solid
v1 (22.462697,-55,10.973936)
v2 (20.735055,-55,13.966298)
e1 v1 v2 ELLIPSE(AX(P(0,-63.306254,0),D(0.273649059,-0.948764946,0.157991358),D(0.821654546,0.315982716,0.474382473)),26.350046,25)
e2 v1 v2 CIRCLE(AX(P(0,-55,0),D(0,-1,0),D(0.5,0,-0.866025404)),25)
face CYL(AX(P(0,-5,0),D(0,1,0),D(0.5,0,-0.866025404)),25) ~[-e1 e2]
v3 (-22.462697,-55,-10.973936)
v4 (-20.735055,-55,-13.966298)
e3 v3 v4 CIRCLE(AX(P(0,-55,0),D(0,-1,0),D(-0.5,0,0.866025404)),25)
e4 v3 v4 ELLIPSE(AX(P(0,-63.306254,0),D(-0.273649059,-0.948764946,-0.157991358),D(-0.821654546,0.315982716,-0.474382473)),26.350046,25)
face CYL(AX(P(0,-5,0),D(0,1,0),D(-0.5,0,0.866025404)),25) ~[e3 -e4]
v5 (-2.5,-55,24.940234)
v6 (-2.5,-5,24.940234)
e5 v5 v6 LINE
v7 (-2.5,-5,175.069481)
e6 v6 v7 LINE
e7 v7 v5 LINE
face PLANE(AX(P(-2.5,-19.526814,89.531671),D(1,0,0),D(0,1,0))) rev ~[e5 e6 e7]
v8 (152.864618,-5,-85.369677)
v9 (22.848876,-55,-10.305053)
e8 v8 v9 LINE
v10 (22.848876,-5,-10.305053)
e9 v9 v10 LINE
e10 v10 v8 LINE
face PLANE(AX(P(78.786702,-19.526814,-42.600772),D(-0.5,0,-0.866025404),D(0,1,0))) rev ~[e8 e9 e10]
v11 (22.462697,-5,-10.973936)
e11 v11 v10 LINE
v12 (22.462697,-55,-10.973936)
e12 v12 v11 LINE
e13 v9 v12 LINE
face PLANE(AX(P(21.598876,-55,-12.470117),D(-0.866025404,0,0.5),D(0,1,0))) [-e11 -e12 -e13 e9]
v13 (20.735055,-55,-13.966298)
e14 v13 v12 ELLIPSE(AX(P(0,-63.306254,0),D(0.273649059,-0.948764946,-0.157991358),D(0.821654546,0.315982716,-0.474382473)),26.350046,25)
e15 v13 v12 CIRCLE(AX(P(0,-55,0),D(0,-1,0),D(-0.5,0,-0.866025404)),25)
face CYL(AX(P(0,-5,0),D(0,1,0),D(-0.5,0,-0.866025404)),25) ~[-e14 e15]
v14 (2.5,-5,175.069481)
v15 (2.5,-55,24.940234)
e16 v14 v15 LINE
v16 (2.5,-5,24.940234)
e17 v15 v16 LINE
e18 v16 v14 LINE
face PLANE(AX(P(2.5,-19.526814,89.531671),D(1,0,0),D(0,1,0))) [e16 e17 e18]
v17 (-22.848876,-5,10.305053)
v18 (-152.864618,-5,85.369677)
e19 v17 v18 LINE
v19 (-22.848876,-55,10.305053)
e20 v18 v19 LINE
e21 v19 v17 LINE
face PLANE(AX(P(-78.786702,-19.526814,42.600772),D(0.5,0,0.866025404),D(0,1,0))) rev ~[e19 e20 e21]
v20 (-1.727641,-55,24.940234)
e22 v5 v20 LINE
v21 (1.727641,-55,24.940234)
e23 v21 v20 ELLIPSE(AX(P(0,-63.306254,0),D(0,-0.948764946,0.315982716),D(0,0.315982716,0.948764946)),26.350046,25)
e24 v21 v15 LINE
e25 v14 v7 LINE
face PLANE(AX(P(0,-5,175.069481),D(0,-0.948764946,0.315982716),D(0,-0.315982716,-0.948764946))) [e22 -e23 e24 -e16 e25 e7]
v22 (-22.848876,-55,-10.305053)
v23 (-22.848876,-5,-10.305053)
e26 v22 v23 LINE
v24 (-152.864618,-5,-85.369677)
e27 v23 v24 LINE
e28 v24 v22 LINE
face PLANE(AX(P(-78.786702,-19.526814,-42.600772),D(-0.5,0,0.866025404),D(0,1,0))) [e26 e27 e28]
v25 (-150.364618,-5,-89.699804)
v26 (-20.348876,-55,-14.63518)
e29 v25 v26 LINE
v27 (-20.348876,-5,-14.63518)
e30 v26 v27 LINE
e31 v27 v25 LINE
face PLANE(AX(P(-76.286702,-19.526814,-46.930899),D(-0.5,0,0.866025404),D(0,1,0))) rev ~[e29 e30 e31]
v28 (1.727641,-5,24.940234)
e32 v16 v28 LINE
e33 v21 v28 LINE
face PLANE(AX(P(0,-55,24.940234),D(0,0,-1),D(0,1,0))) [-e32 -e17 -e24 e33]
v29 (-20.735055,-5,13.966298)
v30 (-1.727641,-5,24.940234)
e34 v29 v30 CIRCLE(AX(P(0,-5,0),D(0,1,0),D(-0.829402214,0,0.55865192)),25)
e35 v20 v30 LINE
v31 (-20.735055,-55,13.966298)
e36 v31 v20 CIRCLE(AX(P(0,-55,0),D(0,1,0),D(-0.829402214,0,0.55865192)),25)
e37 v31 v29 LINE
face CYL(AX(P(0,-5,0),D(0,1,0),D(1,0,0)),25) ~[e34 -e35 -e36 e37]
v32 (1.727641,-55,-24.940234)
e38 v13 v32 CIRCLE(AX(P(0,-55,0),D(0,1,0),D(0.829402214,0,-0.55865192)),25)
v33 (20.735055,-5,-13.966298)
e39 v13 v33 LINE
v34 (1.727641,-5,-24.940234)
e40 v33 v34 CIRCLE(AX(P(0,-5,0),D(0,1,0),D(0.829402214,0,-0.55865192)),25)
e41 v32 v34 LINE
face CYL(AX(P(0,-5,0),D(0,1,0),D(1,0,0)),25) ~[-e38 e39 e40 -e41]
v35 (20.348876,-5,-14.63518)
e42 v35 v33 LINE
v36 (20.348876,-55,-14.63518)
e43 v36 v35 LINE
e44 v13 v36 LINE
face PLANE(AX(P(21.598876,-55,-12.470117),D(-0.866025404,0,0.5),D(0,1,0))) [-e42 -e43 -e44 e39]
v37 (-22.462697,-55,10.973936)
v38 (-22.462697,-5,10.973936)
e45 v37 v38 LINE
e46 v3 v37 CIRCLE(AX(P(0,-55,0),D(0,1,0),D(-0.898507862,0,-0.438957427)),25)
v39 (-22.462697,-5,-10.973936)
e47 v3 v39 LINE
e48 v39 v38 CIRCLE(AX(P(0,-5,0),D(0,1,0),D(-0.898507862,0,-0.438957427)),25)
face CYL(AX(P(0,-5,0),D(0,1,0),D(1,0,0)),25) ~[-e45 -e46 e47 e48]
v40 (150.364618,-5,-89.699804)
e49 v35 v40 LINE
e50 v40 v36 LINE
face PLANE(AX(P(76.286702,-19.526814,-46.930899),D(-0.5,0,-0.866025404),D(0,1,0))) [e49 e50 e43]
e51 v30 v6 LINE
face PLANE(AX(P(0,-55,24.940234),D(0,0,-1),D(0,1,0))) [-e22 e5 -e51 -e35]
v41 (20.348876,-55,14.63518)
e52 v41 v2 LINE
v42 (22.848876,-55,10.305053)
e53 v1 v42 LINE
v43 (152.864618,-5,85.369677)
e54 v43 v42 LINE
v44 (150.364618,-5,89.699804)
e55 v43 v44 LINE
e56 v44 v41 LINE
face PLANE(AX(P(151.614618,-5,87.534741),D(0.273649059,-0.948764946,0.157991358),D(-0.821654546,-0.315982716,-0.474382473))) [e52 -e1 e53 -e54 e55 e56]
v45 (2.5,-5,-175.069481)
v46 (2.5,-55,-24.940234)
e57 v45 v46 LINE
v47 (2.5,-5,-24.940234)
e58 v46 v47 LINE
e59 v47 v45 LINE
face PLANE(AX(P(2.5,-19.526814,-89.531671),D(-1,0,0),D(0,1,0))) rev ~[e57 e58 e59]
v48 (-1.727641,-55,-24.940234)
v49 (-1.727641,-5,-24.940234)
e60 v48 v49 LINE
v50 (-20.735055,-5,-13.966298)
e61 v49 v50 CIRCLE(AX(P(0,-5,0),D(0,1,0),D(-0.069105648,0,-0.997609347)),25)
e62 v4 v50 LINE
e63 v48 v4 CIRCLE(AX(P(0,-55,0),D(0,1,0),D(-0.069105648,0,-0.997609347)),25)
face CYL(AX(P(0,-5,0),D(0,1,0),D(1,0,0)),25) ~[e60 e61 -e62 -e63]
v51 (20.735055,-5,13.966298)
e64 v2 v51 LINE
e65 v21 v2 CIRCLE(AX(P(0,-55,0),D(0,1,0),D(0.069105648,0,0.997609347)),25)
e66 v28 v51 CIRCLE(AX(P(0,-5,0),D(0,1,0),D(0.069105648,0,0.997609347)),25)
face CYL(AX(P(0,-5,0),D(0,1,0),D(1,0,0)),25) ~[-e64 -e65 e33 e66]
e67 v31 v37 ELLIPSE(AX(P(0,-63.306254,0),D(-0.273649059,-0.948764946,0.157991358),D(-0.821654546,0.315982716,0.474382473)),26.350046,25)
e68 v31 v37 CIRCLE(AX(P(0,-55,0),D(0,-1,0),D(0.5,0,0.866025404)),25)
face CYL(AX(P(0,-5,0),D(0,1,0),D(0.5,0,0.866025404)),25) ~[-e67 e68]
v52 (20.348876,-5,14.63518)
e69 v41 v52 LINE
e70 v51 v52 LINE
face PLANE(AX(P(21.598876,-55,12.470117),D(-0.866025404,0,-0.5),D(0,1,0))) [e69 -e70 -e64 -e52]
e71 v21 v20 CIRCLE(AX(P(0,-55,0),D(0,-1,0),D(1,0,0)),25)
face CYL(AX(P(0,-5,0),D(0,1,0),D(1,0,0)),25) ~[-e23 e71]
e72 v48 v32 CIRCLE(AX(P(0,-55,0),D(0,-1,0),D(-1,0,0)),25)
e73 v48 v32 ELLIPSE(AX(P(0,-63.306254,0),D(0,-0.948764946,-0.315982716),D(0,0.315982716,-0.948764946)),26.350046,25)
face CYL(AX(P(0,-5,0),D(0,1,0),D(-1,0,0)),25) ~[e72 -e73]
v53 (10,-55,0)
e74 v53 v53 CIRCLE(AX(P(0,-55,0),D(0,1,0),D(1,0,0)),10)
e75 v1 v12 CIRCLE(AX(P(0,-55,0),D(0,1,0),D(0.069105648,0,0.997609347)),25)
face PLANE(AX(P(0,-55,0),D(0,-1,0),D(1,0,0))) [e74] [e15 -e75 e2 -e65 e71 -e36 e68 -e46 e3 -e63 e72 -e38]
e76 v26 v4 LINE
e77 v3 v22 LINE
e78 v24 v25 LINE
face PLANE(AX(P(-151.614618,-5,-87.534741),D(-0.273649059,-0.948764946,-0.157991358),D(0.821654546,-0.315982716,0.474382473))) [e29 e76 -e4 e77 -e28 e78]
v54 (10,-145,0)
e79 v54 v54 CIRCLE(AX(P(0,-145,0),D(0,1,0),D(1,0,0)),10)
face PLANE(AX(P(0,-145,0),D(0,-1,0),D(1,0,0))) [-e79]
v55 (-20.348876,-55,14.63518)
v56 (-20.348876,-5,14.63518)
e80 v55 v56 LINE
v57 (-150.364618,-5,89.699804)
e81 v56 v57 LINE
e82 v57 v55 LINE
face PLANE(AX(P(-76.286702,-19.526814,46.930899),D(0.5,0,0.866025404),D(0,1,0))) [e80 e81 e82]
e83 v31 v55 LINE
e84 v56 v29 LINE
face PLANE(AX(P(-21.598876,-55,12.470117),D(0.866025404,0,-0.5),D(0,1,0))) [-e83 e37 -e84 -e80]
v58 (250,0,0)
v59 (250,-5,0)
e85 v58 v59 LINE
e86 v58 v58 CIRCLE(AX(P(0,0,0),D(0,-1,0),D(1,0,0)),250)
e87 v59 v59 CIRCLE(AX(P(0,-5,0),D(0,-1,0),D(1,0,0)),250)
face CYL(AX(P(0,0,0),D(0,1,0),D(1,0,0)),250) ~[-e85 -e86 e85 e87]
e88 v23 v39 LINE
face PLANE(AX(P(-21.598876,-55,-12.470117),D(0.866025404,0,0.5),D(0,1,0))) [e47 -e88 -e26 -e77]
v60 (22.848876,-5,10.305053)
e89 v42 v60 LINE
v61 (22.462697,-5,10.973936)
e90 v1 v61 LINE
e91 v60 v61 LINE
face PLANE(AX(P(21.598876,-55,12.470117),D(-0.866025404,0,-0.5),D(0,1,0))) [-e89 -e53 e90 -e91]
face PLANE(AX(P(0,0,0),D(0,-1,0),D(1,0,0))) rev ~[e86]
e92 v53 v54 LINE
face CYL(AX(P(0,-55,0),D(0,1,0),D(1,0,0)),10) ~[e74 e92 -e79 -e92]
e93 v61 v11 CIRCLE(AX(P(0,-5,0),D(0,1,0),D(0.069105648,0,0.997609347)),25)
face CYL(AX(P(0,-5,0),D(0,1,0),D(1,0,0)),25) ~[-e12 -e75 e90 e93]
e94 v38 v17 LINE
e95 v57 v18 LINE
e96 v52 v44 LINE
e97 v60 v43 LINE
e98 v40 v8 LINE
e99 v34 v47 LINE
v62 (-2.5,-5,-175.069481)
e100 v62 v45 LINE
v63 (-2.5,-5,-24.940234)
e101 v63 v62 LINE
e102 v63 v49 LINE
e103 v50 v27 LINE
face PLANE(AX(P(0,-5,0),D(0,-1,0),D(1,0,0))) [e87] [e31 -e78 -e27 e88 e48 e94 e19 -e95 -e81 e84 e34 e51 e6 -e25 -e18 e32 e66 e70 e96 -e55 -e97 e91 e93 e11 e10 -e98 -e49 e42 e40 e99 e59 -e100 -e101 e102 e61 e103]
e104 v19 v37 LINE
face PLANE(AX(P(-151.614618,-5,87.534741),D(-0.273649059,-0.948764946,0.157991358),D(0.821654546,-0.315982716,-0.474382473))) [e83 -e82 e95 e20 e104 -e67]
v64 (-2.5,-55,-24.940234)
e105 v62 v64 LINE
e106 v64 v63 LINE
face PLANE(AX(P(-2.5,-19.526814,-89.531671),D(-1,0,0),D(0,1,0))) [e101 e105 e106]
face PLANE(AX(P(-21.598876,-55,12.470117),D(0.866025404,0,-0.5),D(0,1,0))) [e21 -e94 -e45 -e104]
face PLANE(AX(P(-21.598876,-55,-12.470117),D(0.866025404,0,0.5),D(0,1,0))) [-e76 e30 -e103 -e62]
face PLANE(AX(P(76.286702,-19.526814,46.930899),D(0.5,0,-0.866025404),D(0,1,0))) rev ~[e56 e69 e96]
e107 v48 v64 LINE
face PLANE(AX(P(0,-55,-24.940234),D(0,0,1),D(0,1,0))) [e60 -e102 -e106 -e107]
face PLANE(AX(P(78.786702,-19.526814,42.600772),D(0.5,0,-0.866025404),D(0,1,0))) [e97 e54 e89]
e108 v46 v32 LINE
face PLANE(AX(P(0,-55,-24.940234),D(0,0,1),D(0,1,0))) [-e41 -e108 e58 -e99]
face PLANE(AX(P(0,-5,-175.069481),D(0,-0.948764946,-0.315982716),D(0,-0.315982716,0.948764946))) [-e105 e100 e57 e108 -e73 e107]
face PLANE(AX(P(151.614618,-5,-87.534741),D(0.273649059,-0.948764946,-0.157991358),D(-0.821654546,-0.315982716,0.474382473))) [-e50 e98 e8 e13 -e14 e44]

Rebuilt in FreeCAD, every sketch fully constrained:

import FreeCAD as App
import Part
import Sketcher

V = App.Vector
Q = App.Units.Quantity

doc = App.newDocument("Part")
body = doc.addObject("PartDesign::Body", "Body")

# Sketch on XZ plane
sketch1 = doc.addObject("Sketcher::SketchObject", "Sketch")
body.addObject(sketch1)
sketch1.AttachmentSupport = (doc.XZ_Plane, [""])
sketch1.MapMode = "FlatFace"
sketch1.addGeometry(Part.Circle(V(0, 0, 0), V(0, 0, 1), 250), False)
sketch1.addConstraint([
    Sketcher.Constraint("Coincident", 0, 3, -1, 1),
    Sketcher.Constraint("Diameter", 0, Q("500 mm")),
])
pad1 = doc.addObject("PartDesign::Pad", "Pad")
body.addObject(pad1)
pad1.Profile = sketch1
pad1.Length = 5

# Sketch on XZ plane
sketch2 = doc.addObject("Sketcher::SketchObject", "Sketch001")
body.addObject(sketch2)
sketch2.AttachmentSupport = (doc.XZ_Plane, [""])
sketch2.MapMode = "FlatFace"
sketch2.AttachmentOffset = App.Placement(V(0, 0, 5), App.Rotation())
sketch2.addGeometry(Part.Circle(V(0, 0, 0), V(0, 0, 1), 25), False)
sketch2.addConstraint([
    Sketcher.Constraint("Coincident", 0, 3, -1, 1),
    Sketcher.Constraint("Diameter", 0, Q("50 mm")),
])
pad2 = doc.addObject("PartDesign::Pad", "Pad001")
body.addObject(pad2)
pad2.Profile = sketch2
pad2.Length = 50

# Sketch on XZ plane
sketch3 = doc.addObject("Sketcher::SketchObject", "Sketch002")
body.addObject(sketch3)
sketch3.AttachmentSupport = (doc.XZ_Plane, [""])
sketch3.MapMode = "FlatFace"
sketch3.AttachmentOffset = App.Placement(V(0, 0, 55), App.Rotation())
sketch3.addGeometry(Part.Circle(V(0, 0, 0), V(0, 0, 1), 10), False)
sketch3.addConstraint([
    Sketcher.Constraint("Coincident", 0, 3, -1, 1),
    Sketcher.Constraint("Diameter", 0, Q("20 mm")),
])
pad3 = doc.addObject("PartDesign::Pad", "Pad002")
body.addObject(pad3)
pad3.Profile = sketch3
pad3.Length = 90

# Sketch on YZ plane
sketch4 = doc.addObject("Sketcher::SketchObject", "Sketch003")
body.addObject(sketch4)
sketch4.AttachmentSupport = (doc.YZ_Plane, [""])
sketch4.MapMode = "FlatFace"
sketch4.addGeometry([
    Part.LineSegment(V(-5, 175, 0), V(-55, 25, 0)),
    Part.LineSegment(V(-55, 25, 0), V(-5, 25, 0)),
    Part.LineSegment(V(-5, 25, 0), V(-5, 175, 0)),
], False)
sketch4.addConstraint([
    Sketcher.Constraint("Coincident", 0, 2, 1, 1),
    Sketcher.Constraint("Coincident", 1, 2, 2, 1),
    Sketcher.Constraint("Coincident", 2, 2, 0, 1),
    Sketcher.Constraint("Horizontal", 1),
    Sketcher.Constraint("Vertical", 2),
    Sketcher.Constraint("DistanceX", 1, 1, 1, 2, Q("50 mm")),
    Sketcher.Constraint("DistanceX", 0, 2, -1, 1, Q("55 mm")),
    Sketcher.Constraint("DistanceY", 2, 1, 2, 2, Q("150.129247 mm")),
    Sketcher.Constraint("DistanceY", -1, 1, 2, 2, Q("175.069481 mm")),
])
pad4 = doc.addObject("PartDesign::Pad", "Pad003")
body.addObject(pad4)
pad4.Profile = sketch4
pad4.Length = 5
pad4.Midplane = True
body2 = doc.addObject("PartDesign::Body", "Body001")
doc.recompute()

body2.BaseFeature = body
doc.recompute()

body3 = doc.addObject("PartDesign::Body", "Body002")
body3.BaseFeature = body
body3.Placement = App.Placement(V(0, 0, 0), App.Rotation(V(0, -1, 0), 60))
boolean = doc.addObject("PartDesign::Boolean", "Boolean")
body2.addObject(boolean)
boolean.Type = "Fuse"
boolean.addObjects([body3])
doc.recompute()

body4 = doc.addObject("PartDesign::Body", "Body003")
body4.BaseFeature = body
body4.Placement = App.Placement(V(0, 0, 0), App.Rotation(V(0, -1, 0), 120))
boolean2 = doc.addObject("PartDesign::Boolean", "Boolean001")
body2.addObject(boolean2)
boolean2.Type = "Fuse"
boolean2.addObjects([body4])
doc.recompute()

body5 = doc.addObject("PartDesign::Body", "Body004")
body5.BaseFeature = body
body5.Placement = App.Placement(V(0, 0, 0), App.Rotation(V(0, -1, 0), 180))
boolean3 = doc.addObject("PartDesign::Boolean", "Boolean002")
body2.addObject(boolean3)
boolean3.Type = "Fuse"
boolean3.addObjects([body5])
doc.recompute()

body6 = doc.addObject("PartDesign::Body", "Body005")
body6.BaseFeature = body
body6.Placement = App.Placement(V(0, 0, 0), App.Rotation(V(0, -1, 0), 240))
boolean4 = doc.addObject("PartDesign::Boolean", "Boolean003")
body2.addObject(boolean4)
boolean4.Type = "Fuse"
boolean4.addObjects([body6])
doc.recompute()

body.Placement = App.Placement(V(0, 0, 0), App.Rotation(V(0, -1, 0), 300))
boolean5 = doc.addObject("PartDesign::Boolean", "Boolean004")
body2.addObject(boolean5)
boolean5.Type = "Fuse"
boolean5.addObjects([body])

doc.recompute()
